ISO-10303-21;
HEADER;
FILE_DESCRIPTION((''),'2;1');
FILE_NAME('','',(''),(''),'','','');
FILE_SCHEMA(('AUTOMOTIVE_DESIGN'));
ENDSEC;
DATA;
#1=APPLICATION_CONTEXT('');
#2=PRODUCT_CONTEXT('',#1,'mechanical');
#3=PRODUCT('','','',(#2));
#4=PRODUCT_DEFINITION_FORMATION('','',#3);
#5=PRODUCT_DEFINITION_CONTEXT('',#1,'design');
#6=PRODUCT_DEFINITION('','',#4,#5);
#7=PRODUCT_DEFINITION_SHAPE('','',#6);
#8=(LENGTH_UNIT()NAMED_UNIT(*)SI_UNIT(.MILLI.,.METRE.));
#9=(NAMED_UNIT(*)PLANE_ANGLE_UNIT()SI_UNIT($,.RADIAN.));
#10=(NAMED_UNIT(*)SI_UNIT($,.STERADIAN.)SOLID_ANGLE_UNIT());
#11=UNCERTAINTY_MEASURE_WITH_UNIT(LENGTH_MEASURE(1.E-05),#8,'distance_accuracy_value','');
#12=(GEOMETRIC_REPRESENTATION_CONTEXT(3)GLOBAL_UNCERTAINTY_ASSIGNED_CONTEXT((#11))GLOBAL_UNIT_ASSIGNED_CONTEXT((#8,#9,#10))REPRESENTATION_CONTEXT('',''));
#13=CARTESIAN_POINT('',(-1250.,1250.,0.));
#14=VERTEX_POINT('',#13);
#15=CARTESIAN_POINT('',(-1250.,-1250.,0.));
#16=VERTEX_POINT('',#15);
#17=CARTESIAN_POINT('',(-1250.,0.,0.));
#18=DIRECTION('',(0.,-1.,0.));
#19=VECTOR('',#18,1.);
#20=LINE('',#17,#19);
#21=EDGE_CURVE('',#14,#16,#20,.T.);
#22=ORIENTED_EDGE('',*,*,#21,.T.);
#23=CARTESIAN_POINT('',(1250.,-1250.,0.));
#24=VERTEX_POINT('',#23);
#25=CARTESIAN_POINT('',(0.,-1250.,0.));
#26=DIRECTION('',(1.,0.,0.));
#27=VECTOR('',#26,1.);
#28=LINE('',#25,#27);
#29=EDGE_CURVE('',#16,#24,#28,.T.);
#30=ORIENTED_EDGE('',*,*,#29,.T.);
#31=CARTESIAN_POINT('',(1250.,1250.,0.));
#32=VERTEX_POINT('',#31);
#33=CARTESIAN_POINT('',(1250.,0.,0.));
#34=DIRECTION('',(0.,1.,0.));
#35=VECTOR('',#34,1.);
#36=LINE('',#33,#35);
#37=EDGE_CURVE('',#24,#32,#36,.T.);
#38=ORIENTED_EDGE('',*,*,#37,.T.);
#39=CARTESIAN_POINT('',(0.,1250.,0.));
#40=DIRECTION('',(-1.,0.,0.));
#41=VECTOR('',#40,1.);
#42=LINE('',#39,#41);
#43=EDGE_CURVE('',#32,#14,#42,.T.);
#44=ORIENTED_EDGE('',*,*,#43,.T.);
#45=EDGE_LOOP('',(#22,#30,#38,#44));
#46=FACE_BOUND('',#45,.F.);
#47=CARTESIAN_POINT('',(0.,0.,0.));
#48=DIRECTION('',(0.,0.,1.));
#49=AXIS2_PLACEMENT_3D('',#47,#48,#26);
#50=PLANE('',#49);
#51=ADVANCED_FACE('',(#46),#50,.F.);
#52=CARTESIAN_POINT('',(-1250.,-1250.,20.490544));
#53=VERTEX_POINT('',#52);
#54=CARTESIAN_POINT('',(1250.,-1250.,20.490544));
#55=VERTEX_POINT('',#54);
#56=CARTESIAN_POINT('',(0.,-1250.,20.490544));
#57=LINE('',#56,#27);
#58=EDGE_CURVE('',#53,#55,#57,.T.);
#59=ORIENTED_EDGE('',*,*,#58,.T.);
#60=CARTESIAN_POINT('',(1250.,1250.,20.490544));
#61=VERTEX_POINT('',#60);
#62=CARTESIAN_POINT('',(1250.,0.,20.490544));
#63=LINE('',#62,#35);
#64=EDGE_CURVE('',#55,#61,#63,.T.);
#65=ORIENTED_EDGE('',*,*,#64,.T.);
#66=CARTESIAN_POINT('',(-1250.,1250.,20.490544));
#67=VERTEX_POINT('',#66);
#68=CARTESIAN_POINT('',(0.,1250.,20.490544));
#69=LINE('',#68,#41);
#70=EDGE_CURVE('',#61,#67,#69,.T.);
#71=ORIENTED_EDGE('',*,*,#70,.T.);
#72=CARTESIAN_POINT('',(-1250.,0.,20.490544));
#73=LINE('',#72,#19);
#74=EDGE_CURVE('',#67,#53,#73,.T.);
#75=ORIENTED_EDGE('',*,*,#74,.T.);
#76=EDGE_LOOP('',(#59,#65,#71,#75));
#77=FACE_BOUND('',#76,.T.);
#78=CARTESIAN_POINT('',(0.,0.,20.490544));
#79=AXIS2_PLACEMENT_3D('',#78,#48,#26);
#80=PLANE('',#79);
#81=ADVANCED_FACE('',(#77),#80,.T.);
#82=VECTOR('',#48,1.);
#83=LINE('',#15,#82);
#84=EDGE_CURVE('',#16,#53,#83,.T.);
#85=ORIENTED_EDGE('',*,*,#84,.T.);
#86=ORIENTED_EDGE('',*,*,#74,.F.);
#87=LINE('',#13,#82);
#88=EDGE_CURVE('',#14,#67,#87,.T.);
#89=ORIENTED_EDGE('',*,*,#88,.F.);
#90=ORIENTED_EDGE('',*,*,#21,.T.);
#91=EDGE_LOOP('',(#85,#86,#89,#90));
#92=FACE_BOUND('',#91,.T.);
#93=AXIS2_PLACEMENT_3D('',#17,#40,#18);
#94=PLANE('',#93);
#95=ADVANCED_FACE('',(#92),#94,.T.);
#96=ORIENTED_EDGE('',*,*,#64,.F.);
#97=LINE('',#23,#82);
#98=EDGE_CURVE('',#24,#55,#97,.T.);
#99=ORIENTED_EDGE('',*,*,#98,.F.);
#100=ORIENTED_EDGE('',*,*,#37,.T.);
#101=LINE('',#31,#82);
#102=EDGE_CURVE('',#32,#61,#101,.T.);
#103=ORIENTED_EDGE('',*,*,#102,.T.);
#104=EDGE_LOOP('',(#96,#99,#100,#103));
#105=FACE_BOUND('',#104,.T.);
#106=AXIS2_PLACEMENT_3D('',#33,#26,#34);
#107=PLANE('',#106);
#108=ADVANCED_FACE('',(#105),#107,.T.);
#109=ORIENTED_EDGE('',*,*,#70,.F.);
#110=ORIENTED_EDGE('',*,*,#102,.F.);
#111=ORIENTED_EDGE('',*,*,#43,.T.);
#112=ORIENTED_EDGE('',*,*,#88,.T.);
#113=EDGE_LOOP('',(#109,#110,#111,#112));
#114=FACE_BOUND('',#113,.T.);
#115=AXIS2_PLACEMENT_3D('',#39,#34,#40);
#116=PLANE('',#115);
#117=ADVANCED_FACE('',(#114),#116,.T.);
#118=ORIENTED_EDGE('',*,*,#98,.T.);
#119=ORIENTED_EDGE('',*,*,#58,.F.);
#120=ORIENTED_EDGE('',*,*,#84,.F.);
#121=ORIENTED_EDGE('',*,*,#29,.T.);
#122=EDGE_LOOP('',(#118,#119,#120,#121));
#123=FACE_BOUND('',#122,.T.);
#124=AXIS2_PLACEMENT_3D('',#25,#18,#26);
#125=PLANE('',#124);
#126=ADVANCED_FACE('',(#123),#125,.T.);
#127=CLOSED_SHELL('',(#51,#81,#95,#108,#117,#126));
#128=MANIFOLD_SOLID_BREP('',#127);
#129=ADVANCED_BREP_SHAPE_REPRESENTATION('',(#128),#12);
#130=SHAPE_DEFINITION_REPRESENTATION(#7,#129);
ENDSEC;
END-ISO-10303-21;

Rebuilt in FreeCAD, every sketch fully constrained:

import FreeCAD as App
import Part
import Sketcher

V = App.Vector


def add_polygon(sketch, points):
    """Adds a closed chain of lines whose ends are joined by coincident constraints."""
    first, n = sketch.GeometryCount, len(points)
    for a, b in zip(points, points[1:] + points[:1]):
        sketch.addGeometry(Part.LineSegment(App.Vector(*a, 0), App.Vector(*b, 0)), False)
    for i in range(n):
        sketch.addConstraint(Sketcher.Constraint("Coincident", first + i, 2, first + (i + 1) % n, 1))

doc = App.newDocument("Part")
body = doc.addObject("PartDesign::Body", "Body")

sketch1 = body.newObject("Sketcher::SketchObject", "Sketch")
sketch1.AttachmentSupport = (doc.getObject("XY_Plane"), [""])
sketch1.MapMode = "FlatFace"
add_polygon(sketch1, [(-1250, 1250), (-1250, -1250), (1250, -1250), (1250, 1250)])
sketch1.addConstraint(Sketcher.Constraint("Vertical", 0))
sketch1.addConstraint(Sketcher.Constraint("Horizontal", 1))
sketch1.addConstraint(Sketcher.Constraint("Vertical", 2))
sketch1.addConstraint(Sketcher.Constraint("Horizontal", 3))
sketch1.addConstraint(Sketcher.Constraint("Symmetric", 0, 2, 2, 2, -1, 1))
sketch1.addConstraint(Sketcher.Constraint("Equal", 3, 0))
sketch1.addConstraint(Sketcher.Constraint("DistanceX", 1, 1, 1, 2, 2500.0))

sketch2 = body.newObject("Sketcher::SketchObject", "Sketch001")
sketch2.AttachmentSupport = (doc.getObject("XZ_Plane"), [""])
sketch2.MapMode = "FlatFace"
sketch2.addGeometry(Part.LineSegment(V(0, 0, 0), V(0, 20.490544, 0)), False)
sketch2.addConstraint(Sketcher.Constraint("Vertical", 0))
sketch2.addConstraint(Sketcher.Constraint("Coincident", 0, 1, -1, 1))
sketch2.addConstraint(Sketcher.Constraint("DistanceY", 0, 1, 0, 2, 20.490544))
doc.recompute()

additivepipe = body.newObject("PartDesign::AdditivePipe", "AdditivePipe")
additivepipe.Profile = sketch1
additivepipe.Spine = (sketch2, ["Edge1"])

doc.recompute()
